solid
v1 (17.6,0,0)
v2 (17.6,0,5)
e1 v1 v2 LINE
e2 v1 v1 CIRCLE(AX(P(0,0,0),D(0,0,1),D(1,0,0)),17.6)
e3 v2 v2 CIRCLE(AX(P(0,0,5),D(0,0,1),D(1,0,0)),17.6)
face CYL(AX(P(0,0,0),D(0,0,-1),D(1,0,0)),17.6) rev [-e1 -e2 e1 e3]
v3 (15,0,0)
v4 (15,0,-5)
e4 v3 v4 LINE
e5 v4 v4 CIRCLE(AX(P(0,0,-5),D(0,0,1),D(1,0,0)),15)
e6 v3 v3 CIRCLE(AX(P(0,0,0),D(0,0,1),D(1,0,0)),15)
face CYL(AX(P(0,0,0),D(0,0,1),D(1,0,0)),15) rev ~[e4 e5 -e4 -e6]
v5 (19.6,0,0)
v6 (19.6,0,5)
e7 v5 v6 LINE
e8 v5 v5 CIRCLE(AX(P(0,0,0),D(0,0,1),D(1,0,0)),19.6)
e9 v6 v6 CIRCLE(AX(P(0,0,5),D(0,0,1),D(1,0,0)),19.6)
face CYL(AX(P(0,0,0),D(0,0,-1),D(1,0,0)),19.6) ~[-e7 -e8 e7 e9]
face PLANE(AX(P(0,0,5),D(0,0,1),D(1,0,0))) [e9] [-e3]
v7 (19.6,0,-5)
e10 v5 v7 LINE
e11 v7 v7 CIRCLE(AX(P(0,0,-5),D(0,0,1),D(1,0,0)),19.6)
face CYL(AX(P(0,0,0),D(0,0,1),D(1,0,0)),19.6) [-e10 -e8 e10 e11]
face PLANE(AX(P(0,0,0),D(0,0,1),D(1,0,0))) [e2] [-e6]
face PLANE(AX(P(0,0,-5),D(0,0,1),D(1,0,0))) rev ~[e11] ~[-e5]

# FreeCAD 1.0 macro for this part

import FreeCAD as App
import Part
import Sketcher
Q = App.Units.Quantity

doc = App.newDocument("Part")
params = doc.addObject("Spreadsheet::Sheet", "Params")
for row, (alias, value) in enumerate([
    ("sketch1_diameter", "30 mm"),
    ("sketch1_diameter2", "39.2 mm"),
    ("pad1_length", "5 mm"),
    ("sketch2_diameter", "39.2 mm"),
    ("sketch2_diameter2", "35.2 mm"),
    ("pad2_length", "5 mm"),
], start=1):
    params.set(f"A{row}", alias)
    params.set(f"B{row}", "=" + value)
    params.setAlias(f"B{row}", alias)

body = doc.addObject("PartDesign::Body", "Body")

# Sketch on XY plane
sketch1 = body.newObject("Sketcher::SketchObject", "Sketch")
sketch1.AttachmentSupport = (doc.getObject("XY_Plane"), [""])
sketch1.MapMode = "FlatFace"
sketch1.addGeometry(Part.Circle(App.Vector(0, 0, 0), App.Vector(0, 0, 1), 20), False)
sketch1.addGeometry(Part.Circle(App.Vector(0, 0, 0), App.Vector(0, 0, 1), 15), False)
sketch1.addConstraint(Sketcher.Constraint("Coincident", 0, 3, -1, 1))
sketch1.addConstraint(Sketcher.Constraint("Coincident", 1, 3, -1, 1))
sketch1.addConstraint(Sketcher.Constraint("Diameter", 1, Q("30 mm")))
sketch1.addConstraint(Sketcher.Constraint("Diameter", 0, Q("39.2 mm")))
sketch1.setExpression("Constraints[2]", "Params.sketch1_diameter")
sketch1.setExpression("Constraints[3]", "Params.sketch1_diameter2")
pad1 = body.newObject("PartDesign::Pad", "Pad")
pad1.Profile = sketch1
pad1.setExpression("Length", "Params.pad1_length")
pad1.Reversed = True

# Sketch on XY plane
sketch2 = body.newObject("Sketcher::SketchObject", "Sketch001")
sketch2.AttachmentSupport = (doc.getObject("XY_Plane"), [""])
sketch2.MapMode = "FlatFace"
sketch2.addGeometry(Part.Circle(App.Vector(0, 0, 0), App.Vector(0, 0, 1), 20), False)
sketch2.addGeometry(Part.Circle(App.Vector(0, 0, 0), App.Vector(0, 0, 1), 18), False)
sketch2.addConstraint(Sketcher.Constraint("Coincident", 0, 3, -1, 1))
sketch2.addConstraint(Sketcher.Constraint("Coincident", 1, 3, -1, 1))
sketch2.addConstraint(Sketcher.Constraint("Diameter", 0, Q("39.2 mm")))
sketch2.addConstraint(Sketcher.Constraint("Diameter", 1, Q("35.2 mm")))
sketch2.setExpression("Constraints[2]", "Params.sketch2_diameter")
sketch2.setExpression("Constraints[3]", "Params.sketch2_diameter2")
pad2 = body.newObject("PartDesign::Pad", "Pad001")
pad2.Profile = sketch2
pad2.setExpression("Length", "Params.pad2_length")

doc.recompute()
